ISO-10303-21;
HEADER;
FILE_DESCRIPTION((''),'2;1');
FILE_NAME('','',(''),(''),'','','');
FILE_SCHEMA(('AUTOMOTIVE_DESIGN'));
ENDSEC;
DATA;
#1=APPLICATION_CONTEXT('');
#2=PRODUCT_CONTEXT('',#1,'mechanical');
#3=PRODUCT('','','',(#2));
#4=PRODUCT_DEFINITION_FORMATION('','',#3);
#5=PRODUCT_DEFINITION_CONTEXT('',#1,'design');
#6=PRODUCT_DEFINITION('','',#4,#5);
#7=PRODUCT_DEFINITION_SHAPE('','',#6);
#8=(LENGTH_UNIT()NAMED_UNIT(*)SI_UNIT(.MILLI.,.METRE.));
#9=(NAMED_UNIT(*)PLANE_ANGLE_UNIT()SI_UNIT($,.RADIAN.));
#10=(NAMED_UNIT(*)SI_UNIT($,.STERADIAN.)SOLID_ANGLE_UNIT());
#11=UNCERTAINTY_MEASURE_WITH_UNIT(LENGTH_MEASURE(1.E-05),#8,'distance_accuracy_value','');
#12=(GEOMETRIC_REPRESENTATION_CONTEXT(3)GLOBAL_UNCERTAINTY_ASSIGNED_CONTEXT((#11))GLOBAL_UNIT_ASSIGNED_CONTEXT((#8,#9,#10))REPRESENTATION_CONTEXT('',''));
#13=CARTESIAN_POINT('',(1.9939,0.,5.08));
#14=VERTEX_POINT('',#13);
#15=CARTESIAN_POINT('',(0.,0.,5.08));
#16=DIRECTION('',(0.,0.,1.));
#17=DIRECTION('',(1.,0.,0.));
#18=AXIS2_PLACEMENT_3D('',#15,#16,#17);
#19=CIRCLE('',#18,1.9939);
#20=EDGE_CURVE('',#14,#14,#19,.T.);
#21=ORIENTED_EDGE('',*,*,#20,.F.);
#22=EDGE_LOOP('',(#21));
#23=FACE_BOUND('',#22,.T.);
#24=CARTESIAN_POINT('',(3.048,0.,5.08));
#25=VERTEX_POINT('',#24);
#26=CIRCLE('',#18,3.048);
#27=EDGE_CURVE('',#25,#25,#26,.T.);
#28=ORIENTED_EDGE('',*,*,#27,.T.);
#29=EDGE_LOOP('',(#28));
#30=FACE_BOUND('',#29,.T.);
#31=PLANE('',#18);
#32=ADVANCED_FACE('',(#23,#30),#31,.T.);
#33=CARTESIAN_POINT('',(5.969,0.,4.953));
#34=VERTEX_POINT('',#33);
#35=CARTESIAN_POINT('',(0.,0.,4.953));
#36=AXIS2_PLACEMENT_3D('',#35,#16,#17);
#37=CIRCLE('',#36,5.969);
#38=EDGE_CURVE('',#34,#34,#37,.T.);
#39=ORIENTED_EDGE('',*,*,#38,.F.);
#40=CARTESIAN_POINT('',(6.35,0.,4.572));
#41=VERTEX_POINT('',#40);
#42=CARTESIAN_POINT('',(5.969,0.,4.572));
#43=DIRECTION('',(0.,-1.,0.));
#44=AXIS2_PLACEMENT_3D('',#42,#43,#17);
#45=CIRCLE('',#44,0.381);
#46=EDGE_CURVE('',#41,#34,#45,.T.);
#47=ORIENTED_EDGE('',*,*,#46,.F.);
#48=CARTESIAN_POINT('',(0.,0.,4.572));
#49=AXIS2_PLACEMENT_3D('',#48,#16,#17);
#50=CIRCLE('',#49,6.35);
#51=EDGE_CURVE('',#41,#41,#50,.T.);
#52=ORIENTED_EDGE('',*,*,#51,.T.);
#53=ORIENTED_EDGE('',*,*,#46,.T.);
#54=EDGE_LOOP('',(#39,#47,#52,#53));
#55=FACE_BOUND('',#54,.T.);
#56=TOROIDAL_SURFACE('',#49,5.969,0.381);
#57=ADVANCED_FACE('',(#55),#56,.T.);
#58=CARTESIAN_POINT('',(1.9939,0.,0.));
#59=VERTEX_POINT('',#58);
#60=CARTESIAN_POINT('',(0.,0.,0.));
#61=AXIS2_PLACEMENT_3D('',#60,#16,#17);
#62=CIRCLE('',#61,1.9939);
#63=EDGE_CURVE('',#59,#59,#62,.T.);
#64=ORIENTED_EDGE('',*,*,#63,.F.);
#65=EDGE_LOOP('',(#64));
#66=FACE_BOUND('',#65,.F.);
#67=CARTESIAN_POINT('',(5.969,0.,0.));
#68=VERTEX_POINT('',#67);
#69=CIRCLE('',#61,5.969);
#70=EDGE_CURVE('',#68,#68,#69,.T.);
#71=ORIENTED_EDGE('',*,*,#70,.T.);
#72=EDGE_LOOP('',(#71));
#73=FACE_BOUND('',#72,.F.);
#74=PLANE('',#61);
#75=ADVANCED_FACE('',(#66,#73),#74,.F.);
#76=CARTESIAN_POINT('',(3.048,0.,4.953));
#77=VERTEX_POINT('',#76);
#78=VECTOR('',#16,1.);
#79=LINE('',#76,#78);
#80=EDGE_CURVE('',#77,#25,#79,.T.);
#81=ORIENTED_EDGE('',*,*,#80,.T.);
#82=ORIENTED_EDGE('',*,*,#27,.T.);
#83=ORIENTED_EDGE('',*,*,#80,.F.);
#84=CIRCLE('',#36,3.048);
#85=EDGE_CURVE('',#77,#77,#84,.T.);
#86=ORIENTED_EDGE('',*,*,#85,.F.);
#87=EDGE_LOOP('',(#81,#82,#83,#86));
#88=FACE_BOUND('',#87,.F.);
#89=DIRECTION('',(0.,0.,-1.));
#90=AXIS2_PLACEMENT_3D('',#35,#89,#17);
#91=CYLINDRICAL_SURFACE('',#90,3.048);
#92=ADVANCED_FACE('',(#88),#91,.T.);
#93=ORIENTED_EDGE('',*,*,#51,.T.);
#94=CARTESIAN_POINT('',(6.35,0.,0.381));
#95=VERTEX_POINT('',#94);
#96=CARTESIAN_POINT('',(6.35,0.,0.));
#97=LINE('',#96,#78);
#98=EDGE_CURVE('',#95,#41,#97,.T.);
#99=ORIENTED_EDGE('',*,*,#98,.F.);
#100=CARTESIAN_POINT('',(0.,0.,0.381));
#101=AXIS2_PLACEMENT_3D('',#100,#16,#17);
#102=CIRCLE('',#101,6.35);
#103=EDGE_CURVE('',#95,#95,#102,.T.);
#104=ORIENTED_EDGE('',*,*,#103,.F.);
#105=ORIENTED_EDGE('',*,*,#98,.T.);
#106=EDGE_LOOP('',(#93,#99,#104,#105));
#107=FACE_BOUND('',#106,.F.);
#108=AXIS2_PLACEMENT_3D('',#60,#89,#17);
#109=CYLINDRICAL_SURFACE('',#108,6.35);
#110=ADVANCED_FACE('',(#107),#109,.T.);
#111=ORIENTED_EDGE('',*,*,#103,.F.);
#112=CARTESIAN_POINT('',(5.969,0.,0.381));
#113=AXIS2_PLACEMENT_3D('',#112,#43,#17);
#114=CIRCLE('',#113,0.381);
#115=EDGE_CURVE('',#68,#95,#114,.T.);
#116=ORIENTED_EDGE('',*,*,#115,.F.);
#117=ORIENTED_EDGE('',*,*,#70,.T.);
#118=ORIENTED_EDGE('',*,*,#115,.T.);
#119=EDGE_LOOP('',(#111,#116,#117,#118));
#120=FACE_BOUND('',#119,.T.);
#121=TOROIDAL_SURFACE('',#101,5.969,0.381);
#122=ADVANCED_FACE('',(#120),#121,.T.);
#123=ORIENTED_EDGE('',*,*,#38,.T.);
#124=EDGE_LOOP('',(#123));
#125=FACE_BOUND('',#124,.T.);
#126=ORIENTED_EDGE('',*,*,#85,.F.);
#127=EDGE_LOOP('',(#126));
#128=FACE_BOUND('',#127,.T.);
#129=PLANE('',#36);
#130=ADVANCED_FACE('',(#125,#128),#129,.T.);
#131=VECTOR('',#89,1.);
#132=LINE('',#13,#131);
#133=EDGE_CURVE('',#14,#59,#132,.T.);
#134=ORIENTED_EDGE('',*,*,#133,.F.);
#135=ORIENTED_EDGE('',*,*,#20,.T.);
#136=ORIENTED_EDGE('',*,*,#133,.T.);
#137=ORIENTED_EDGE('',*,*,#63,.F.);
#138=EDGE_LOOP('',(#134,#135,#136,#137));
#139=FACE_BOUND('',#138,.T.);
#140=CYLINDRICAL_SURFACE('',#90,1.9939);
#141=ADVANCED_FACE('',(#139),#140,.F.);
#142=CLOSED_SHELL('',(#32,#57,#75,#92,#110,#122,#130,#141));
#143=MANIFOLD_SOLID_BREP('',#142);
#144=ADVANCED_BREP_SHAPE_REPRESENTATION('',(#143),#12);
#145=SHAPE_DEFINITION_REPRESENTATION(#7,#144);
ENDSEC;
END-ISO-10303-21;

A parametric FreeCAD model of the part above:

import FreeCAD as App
import Part
import Sketcher
Q = App.Units.Quantity


def edges_at(feature, points):
    """Names of the edges that pass closest to the given points."""
    edges = feature.Shape.Edges
    near = lambda p: min(range(len(edges)), key=lambda i: edges[i].distToShape(Part.Vertex(*p))[0])
    return sorted({f"Edge{near(p) + 1}" for p in points})

doc = App.newDocument("Part")
body = doc.addObject("PartDesign::Body", "Body")

# Sketch on XY plane
sketch1 = doc.addObject("Sketcher::SketchObject", "Sketch")
body.addObject(sketch1)
sketch1.AttachmentSupport = (doc.XY_Plane, [""])
sketch1.MapMode = "FlatFace"
sketch1.addGeometry(Part.Circle(App.Vector(0, 0, 0), App.Vector(0, 0, 1), 6.3), False)
sketch1.addGeometry(Part.Circle(App.Vector(0, 0, 0), App.Vector(0, 0, 1), 2), False)
sketch1.addConstraint(Sketcher.Constraint("Coincident", 0, 3, -1, 1))
sketch1.addConstraint(Sketcher.Constraint("Coincident", 1, 3, -1, 1))
sketch1.addConstraint(Sketcher.Constraint("Diameter", 0, Q("0.5 in")))
sketch1.addConstraint(Sketcher.Constraint("Diameter", 1, Q("0.157 in")))
pad1 = doc.addObject("PartDesign::Pad", "Pad")
body.addObject(pad1)
pad1.Profile = sketch1
pad1.Length = Q("0.195 in")

# Sketch on XY plane
sketch2 = doc.addObject("Sketcher::SketchObject", "Sketch001")
body.addObject(sketch2)
sketch2.AttachmentSupport = (doc.XY_Plane, [""])
sketch2.MapMode = "FlatFace"
sketch2.AttachmentOffset = App.Placement(App.Vector(0, 0, 0.195 * 25.4), App.Rotation())
sketch2.addGeometry(Part.Circle(App.Vector(0, 0, 0), App.Vector(0, 0, 1), 3), False)
sketch2.addGeometry(Part.Circle(App.Vector(0, 0, 0), App.Vector(0, 0, 1), 2), False)
sketch2.addConstraint(Sketcher.Constraint("Coincident", 0, 3, -1, 1))
sketch2.addConstraint(Sketcher.Constraint("Coincident", 1, 3, -1, 1))
sketch2.addConstraint(Sketcher.Constraint("Diameter", 0, Q("0.24 in")))
sketch2.addConstraint(Sketcher.Constraint("Diameter", 1, Q("0.157 in")))
pad2 = doc.addObject("PartDesign::Pad", "Pad001")
body.addObject(pad2)
pad2.Profile = sketch2
pad2.Length = Q("0.005 in")
doc.recompute()

fillet = doc.addObject("PartDesign::Fillet", "Fillet")
body.addObject(fillet)
fillet.Base = (pad2, edges_at(pad2, [(-6.35, 0, 4.953), (-6.35, 0, 0)]))
fillet.Radius = Q("0.015 in")

doc.recompute()
